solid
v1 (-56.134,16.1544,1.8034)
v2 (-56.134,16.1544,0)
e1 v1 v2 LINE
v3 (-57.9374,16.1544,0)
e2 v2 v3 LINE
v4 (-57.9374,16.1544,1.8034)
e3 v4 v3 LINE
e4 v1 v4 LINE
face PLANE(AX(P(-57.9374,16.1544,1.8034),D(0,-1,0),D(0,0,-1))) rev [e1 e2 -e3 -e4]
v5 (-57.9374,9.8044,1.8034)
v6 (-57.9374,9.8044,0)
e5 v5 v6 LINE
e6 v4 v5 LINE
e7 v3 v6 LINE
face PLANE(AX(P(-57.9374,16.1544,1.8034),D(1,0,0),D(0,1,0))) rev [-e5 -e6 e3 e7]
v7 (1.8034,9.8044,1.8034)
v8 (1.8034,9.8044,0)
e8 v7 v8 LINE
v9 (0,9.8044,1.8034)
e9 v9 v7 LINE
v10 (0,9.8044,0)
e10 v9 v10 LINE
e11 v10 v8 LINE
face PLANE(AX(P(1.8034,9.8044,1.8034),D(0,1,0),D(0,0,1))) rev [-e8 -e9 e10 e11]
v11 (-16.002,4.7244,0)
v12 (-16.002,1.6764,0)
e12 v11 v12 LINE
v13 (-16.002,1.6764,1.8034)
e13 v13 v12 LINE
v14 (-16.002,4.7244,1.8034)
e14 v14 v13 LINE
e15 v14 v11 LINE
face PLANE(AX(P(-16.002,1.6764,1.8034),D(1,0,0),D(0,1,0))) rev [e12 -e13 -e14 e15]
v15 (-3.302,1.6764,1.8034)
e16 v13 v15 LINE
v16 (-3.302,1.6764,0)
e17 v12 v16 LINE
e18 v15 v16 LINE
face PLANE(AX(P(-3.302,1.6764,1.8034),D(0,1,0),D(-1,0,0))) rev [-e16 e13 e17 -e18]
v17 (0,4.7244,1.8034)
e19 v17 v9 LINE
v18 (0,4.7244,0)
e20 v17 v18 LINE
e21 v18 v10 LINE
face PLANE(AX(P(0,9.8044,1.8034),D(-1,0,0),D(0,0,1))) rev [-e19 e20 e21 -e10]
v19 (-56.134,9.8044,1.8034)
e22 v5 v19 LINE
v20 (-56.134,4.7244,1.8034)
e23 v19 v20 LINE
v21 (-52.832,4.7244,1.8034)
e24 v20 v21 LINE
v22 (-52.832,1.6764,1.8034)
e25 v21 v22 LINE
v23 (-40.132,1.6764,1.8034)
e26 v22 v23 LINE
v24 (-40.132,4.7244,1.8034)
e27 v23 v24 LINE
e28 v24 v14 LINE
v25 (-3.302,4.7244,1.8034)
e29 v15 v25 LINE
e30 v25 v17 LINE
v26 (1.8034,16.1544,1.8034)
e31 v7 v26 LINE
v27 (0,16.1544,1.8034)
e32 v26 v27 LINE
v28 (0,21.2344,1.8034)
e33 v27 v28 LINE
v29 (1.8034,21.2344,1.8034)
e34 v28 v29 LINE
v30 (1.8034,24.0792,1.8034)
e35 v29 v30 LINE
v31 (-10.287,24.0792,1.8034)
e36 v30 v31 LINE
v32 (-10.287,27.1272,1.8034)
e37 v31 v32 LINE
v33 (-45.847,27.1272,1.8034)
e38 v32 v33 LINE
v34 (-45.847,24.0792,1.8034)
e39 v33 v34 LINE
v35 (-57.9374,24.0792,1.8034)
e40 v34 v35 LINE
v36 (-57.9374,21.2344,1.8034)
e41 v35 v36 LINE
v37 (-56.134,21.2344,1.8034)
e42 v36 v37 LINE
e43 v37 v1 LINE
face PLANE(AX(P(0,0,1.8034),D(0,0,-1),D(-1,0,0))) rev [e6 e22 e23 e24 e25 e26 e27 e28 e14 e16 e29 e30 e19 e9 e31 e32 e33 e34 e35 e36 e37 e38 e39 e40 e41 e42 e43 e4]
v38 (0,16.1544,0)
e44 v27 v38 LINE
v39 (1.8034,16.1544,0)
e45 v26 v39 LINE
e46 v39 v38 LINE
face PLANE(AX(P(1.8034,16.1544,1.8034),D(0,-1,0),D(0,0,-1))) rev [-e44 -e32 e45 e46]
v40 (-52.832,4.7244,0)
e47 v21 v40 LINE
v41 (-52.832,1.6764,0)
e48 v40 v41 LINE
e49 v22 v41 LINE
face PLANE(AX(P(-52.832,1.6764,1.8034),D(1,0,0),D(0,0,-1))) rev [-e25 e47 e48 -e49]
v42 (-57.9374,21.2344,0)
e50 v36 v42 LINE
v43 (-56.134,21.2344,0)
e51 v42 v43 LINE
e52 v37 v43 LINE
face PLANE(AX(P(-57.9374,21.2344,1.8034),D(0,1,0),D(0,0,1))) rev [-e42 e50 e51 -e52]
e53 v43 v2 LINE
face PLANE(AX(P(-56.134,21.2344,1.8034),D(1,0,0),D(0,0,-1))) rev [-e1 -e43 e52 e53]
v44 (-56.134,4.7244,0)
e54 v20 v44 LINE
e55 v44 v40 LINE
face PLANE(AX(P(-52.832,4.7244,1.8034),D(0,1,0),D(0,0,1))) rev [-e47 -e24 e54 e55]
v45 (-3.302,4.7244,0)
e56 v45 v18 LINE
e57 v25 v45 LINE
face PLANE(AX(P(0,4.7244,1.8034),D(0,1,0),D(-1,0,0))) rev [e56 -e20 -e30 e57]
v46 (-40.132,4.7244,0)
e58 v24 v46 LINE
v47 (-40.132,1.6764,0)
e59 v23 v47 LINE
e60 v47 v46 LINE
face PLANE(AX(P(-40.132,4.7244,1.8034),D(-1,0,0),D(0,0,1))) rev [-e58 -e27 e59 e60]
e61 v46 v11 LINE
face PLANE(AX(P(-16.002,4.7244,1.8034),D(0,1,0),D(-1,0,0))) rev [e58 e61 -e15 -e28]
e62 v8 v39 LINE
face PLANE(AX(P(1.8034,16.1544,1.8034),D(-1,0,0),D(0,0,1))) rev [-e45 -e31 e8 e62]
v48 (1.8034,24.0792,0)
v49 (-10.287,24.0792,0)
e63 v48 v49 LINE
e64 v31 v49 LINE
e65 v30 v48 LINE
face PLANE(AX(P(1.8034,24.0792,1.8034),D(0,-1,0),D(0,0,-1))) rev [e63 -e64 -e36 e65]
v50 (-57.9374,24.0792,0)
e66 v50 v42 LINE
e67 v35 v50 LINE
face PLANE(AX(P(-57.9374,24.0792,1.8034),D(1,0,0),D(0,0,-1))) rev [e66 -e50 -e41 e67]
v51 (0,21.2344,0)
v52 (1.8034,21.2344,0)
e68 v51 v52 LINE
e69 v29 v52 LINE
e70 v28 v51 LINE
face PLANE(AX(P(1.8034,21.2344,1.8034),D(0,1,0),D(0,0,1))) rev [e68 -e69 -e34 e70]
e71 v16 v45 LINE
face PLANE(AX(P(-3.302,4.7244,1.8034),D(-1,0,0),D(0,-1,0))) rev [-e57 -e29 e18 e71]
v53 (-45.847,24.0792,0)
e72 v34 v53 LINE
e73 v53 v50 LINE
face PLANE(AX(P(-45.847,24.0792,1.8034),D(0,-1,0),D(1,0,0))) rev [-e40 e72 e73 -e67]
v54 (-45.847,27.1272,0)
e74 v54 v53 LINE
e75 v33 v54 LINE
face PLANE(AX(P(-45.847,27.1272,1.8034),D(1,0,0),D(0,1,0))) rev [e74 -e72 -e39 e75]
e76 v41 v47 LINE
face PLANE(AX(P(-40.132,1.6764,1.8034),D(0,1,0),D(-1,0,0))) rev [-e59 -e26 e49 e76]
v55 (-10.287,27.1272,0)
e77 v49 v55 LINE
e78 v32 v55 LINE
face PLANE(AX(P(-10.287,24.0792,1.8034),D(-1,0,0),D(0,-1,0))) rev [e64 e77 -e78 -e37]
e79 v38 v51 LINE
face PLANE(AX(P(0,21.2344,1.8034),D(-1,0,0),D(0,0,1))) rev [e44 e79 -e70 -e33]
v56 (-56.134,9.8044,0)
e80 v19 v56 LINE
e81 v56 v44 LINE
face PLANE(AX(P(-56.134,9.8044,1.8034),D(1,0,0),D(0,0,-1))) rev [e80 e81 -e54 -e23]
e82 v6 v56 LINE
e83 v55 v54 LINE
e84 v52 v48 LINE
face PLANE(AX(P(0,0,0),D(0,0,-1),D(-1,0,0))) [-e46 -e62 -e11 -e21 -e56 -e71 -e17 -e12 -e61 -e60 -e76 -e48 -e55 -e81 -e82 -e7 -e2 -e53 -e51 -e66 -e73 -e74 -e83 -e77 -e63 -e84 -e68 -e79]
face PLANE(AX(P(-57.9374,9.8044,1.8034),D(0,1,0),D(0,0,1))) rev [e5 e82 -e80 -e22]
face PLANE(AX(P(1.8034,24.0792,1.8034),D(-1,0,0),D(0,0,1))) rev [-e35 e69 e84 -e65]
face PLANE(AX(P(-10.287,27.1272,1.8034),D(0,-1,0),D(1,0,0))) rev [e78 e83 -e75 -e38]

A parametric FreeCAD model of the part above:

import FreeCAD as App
import Part
import Sketcher
from FreeCAD import Vector
Q = App.Units.Quantity


def add_polygon(sketch, points):
    """Adds a closed chain of lines whose ends are joined by coincident constraints."""
    first, n = sketch.GeometryCount, len(points)
    for a, b in zip(points, points[1:] + points[:1]):
        sketch.addGeometry(Part.LineSegment(App.Vector(*a, 0), App.Vector(*b, 0)), False)
    for i in range(n):
        sketch.addConstraint(Sketcher.Constraint("Coincident", first + i, 2, first + (i + 1) % n, 1))

doc = App.newDocument("Part")
body = doc.addObject("PartDesign::Body", "Body")

sketch1 = body.newObject("Sketcher::SketchObject", "Sketch")
sketch1.AttachmentSupport = (doc.getObject("XY_Plane"), [""])
sketch1.MapMode = "FlatFace"
add_polygon(sketch1, [(0, 9.8044), (1.8034, 9.8044), (1.8034, 16.1544), (0, 16.1544), (0, 21.2344), (1.8034, 21.2344), (1.8034, 24.0792), (-10.287, 24.0792), (-10.287, 27.1272), (-45.847, 27.1272), (-45.847, 24.0792), (-57.9374, 24.0792), (-57.9374, 21.2344), (-56.134, 21.2344), (-56.134, 16.1544), (-57.9374, 16.1544), (-57.9374, 9.8044), (-56.134, 9.8044), (-56.134, 4.7244), (-52.832, 4.7244), (-52.832, 1.6764), (-40.132, 1.6764), (-40.132, 4.7244), (-16.002, 4.7244), (-16.002, 1.6764), (-3.302, 1.6764), (-3.302, 4.7244), (0, 4.7244)])
sketch1.addConstraint(Sketcher.Constraint("Horizontal", 0))
sketch1.addConstraint(Sketcher.Constraint("Vertical", 1))
sketch1.addConstraint(Sketcher.Constraint("Horizontal", 2))
sketch1.addConstraint(Sketcher.Constraint("Vertical", 3))
sketch1.addConstraint(Sketcher.Constraint("Horizontal", 4))
sketch1.addConstraint(Sketcher.Constraint("Vertical", 5))
sketch1.addConstraint(Sketcher.Constraint("Horizontal", 6))
sketch1.addConstraint(Sketcher.Constraint("Vertical", 7))
sketch1.addConstraint(Sketcher.Constraint("Horizontal", 8))
sketch1.addConstraint(Sketcher.Constraint("Vertical", 9))
sketch1.addConstraint(Sketcher.Constraint("Horizontal", 10))
sketch1.addConstraint(Sketcher.Constraint("Vertical", 11))
sketch1.addConstraint(Sketcher.Constraint("Horizontal", 12))
sketch1.addConstraint(Sketcher.Constraint("Vertical", 13))
sketch1.addConstraint(Sketcher.Constraint("Horizontal", 14))
sketch1.addConstraint(Sketcher.Constraint("Vertical", 15))
sketch1.addConstraint(Sketcher.Constraint("Horizontal", 16))
sketch1.addConstraint(Sketcher.Constraint("Vertical", 17))
sketch1.addConstraint(Sketcher.Constraint("Horizontal", 18))
sketch1.addConstraint(Sketcher.Constraint("Vertical", 19))
sketch1.addConstraint(Sketcher.Constraint("Horizontal", 20))
sketch1.addConstraint(Sketcher.Constraint("Vertical", 21))
sketch1.addConstraint(Sketcher.Constraint("Horizontal", 22))
sketch1.addConstraint(Sketcher.Constraint("Vertical", 23))
sketch1.addConstraint(Sketcher.Constraint("Horizontal", 24))
sketch1.addConstraint(Sketcher.Constraint("Vertical", 25))
sketch1.addConstraint(Sketcher.Constraint("Horizontal", 26))
sketch1.addConstraint(Sketcher.Constraint("Vertical", 27))
sketch1.addConstraint(Sketcher.Constraint("PointOnObject", 2, 2, -2))
sketch1.addConstraint(Sketcher.Constraint("PointOnObject", 26, 2, -2))
sketch1.addConstraint(Sketcher.Constraint("Horizontal", 6, 2, 9, 2))
sketch1.addConstraint(Sketcher.Constraint("Horizontal", 4, 2, 11, 2))
sketch1.addConstraint(Sketcher.Constraint("Horizontal", 2, 2, 13, 2))
sketch1.addConstraint(Sketcher.Constraint("Horizontal", 0, 2, 15, 2))
sketch1.addConstraint(Sketcher.Constraint("Horizontal", 18, 2, 21, 2))
sketch1.addConstraint(Sketcher.Constraint("Horizontal", 20, 2, 23, 2))
sketch1.addConstraint(Sketcher.Constraint("Horizontal", 22, 2, 25, 2))
sketch1.addConstraint(Sketcher.Constraint("Vertical", 1, 2, 4, 2))
sketch1.addConstraint(Sketcher.Constraint("Vertical", 11, 2, 14, 2))
sketch1.addConstraint(Sketcher.Constraint("Vertical", 13, 2, 16, 2))
sketch1.addConstraint(Sketcher.Constraint("Equal", 6, 10))
sketch1.addConstraint(Sketcher.Constraint("Equal", 4, 12))
sketch1.addConstraint(Sketcher.Constraint("Equal", 20, 24))
sketch1.addConstraint(Sketcher.Constraint("Equal", 18, 26))
sketch1.addConstraint(Sketcher.Constraint("Equal", 13, 17))
sketch1.addConstraint(Sketcher.Constraint("Equal", 9, 19))
sketch1.addConstraint(Sketcher.Constraint("DistanceX", 8, 2, 8, 1, Q("1.4 in")))
sketch1.addConstraint(Sketcher.Constraint("DistanceX", 20, 1, 20, 2, Q("0.5 in")))
sketch1.addConstraint(Sketcher.Constraint("DistanceY", 3, 1, 3, 2, Q("0.2 in")))
sketch1.addConstraint(Sketcher.Constraint("DistanceX", 18, 1, 18, 2, Q("0.13 in")))
sketch1.addConstraint(Sketcher.Constraint("DistanceX", 22, 1, 22, 2, Q("0.95 in")))
sketch1.addConstraint(Sketcher.Constraint("DistanceY", 1, 1, 1, 2, Q("0.25 in")))
sketch1.addConstraint(Sketcher.Constraint("DistanceY", 7, 1, 7, 2, Q("0.12 in")))
sketch1.addConstraint(Sketcher.Constraint("DistanceX", 0, 1, 0, 2, Q("0.071 in")))
sketch1.addConstraint(Sketcher.Constraint("DistanceY", 5, 1, 5, 2, Q("0.112 in")))
sketch1.addConstraint(Sketcher.Constraint("DistanceY", -1, 1, 0, 2, Q("0.386 in")))
pad1 = body.newObject("PartDesign::Pad", "Pad")
pad1.Profile = sketch1
pad1.Length = Q("0.071 in")

doc.recompute()
